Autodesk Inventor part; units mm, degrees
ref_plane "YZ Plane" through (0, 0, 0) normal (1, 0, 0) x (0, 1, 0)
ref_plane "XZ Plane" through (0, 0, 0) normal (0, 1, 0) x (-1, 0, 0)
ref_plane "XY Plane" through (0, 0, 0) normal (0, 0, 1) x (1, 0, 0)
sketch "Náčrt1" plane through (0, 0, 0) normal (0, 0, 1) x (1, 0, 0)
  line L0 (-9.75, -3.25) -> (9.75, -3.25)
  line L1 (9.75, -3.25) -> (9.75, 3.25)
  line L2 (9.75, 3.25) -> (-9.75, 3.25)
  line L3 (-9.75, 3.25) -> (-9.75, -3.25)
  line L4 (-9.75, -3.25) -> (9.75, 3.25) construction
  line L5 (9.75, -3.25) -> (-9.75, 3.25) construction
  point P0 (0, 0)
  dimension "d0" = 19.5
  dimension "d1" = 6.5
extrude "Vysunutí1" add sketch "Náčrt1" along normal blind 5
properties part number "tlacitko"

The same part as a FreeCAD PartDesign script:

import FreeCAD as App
import Part
import Sketcher
Q = App.Units.Quantity

doc = App.newDocument("Part")
body = doc.addObject("PartDesign::Body", "Body")

# Sketch on XY plane
sketch1 = body.newObject("Sketcher::SketchObject", "Sketch")
sketch1.AttachmentSupport = (doc.getObject("XY_Plane"), [""])
sketch1.MapMode = "FlatFace"
sketch1.addGeometry([
    Part.LineSegment(App.Vector(-10, 3, 0), App.Vector(-10, -3, 0)),
    Part.LineSegment(App.Vector(-10, -3, 0), App.Vector(10, -3, 0)),
    Part.LineSegment(App.Vector(10, -3, 0), App.Vector(10, 3, 0)),
    Part.LineSegment(App.Vector(10, 3, 0), App.Vector(-10, 3, 0)),
], False)
sketch1.addConstraint([
    Sketcher.Constraint("Coincident", 0, 2, 1, 1),
    Sketcher.Constraint("Coincident", 1, 2, 2, 1),
    Sketcher.Constraint("Coincident", 2, 2, 3, 1),
    Sketcher.Constraint("Coincident", 3, 2, 0, 1),
    Sketcher.Constraint("Vertical", 0),
    Sketcher.Constraint("Horizontal", 1),
    Sketcher.Constraint("Vertical", 2),
    Sketcher.Constraint("Horizontal", 3),
    Sketcher.Constraint("Symmetric", 0, 2, 2, 2, -1, 1),
    Sketcher.Constraint("DistanceX", 1, 1, 1, 2, Q("19.5 mm")),
    Sketcher.Constraint("DistanceY", 0, 2, 0, 1, Q("6.5 mm")),
])
pad1 = body.newObject("PartDesign::Pad", "Pad")
pad1.Profile = sketch1
pad1.Length = 5

doc.recompute()
